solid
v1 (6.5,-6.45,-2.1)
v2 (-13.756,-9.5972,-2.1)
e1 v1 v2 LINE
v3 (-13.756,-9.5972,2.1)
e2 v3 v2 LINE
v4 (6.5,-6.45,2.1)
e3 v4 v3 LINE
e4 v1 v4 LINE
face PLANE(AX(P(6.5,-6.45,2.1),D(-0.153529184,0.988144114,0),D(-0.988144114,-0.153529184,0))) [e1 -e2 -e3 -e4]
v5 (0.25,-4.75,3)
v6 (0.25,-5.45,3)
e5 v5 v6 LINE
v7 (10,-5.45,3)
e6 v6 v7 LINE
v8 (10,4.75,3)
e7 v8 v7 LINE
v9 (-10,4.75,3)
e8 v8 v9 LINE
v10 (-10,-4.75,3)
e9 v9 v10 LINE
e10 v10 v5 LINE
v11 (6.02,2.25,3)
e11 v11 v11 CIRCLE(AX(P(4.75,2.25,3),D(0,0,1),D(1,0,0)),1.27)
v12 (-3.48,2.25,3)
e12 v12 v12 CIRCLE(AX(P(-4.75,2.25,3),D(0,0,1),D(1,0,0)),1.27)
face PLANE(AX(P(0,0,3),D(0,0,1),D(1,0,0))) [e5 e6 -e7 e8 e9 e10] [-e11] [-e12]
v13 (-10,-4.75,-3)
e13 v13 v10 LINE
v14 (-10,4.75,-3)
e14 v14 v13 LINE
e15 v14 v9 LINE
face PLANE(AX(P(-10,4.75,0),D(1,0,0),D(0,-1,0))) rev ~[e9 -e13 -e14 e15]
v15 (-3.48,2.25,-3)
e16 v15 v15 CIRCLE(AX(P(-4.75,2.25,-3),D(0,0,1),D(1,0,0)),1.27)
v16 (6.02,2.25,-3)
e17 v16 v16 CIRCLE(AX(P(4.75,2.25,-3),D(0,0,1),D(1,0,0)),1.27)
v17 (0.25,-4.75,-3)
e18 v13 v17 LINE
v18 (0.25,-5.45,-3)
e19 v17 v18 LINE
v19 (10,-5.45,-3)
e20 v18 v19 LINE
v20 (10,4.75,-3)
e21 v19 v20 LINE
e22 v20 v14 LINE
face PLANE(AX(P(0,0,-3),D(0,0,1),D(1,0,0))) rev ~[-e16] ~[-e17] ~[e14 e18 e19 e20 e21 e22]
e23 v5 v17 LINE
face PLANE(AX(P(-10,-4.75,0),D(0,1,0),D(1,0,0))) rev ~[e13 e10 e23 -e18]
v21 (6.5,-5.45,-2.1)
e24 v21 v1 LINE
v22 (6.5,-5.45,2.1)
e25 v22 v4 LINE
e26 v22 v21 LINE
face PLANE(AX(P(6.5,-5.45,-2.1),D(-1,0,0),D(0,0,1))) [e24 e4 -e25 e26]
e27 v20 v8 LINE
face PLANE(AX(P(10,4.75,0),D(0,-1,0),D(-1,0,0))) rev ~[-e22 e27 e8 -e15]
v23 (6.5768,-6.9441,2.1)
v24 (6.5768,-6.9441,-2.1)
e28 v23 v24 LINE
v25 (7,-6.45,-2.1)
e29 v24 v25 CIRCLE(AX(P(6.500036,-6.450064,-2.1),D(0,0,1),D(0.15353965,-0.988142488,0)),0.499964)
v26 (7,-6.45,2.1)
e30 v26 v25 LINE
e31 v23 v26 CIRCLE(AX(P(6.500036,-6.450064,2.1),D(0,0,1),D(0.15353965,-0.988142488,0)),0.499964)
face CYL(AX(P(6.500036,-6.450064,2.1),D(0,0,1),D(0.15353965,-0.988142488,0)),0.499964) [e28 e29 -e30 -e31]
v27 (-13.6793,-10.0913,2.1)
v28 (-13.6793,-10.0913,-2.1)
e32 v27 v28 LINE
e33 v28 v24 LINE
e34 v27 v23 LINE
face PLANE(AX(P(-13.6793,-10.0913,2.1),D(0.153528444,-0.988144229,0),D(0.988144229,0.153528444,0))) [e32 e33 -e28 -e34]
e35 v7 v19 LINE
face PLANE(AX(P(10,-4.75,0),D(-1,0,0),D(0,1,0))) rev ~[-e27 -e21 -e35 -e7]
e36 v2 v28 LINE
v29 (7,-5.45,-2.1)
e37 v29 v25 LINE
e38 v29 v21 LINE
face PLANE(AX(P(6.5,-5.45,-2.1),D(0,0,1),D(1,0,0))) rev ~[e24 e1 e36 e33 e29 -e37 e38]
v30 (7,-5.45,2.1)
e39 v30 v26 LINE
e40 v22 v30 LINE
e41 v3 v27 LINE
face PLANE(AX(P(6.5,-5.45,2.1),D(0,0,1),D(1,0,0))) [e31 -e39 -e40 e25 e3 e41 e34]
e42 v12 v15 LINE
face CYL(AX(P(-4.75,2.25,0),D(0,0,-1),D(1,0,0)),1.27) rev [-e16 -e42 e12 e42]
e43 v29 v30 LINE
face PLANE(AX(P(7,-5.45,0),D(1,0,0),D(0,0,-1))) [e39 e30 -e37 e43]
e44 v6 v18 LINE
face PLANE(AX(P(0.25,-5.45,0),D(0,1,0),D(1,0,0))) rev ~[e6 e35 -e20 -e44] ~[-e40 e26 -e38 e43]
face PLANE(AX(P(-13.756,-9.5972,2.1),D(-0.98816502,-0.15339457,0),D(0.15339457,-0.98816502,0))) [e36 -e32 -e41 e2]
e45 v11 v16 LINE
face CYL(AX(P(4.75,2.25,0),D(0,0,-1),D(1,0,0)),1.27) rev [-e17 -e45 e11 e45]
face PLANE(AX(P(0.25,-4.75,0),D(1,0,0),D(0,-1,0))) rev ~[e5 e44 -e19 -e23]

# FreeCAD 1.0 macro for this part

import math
import FreeCAD as App
import Part
import Sketcher
from FreeCAD import Vector
Q = App.Units.Quantity

doc = App.newDocument("Part")
body = doc.addObject("PartDesign::Body", "Body")

# Sketch on XY plane
sketch1 = body.newObject("Sketcher::SketchObject", "Sketch")
sketch1.AttachmentSupport = (doc.getObject("XY_Plane"), [""])
sketch1.MapMode = "FlatFace"
sketch1.addGeometry(Part.LineSegment(Vector(10, 4.75, 0), Vector(-10, 4.75, 0)), False)
sketch1.addGeometry(Part.LineSegment(Vector(-10, 4.75, 0), Vector(-10, -4.75, 0)), False)
sketch1.addGeometry(Part.LineSegment(Vector(-10, -4.75, 0), Vector(0.25, -4.75, 0)), False)
sketch1.addGeometry(Part.LineSegment(Vector(0.25, -4.75, 0), Vector(0.25, -5.45, 0)), False)
sketch1.addGeometry(Part.LineSegment(Vector(0.25, -5.45, 0), Vector(10, -5.45, 0)), False)
sketch1.addGeometry(Part.LineSegment(Vector(10, -5.45, 0), Vector(10, 4.75, 0)), False)
sketch1.addGeometry(Part.Circle(Vector(-4.75, 2.25, 0), Vector(0, 0, 1), 1.27), False)
sketch1.addGeometry(Part.Circle(Vector(4.75, 2.25, 0), Vector(0, 0, 1), 1.27), False)
sketch1.addConstraint(Sketcher.Constraint("Coincident", 0, 2, 1, 1))
sketch1.addConstraint(Sketcher.Constraint("Coincident", 1, 2, 2, 1))
sketch1.addConstraint(Sketcher.Constraint("Coincident", 2, 2, 3, 1))
sketch1.addConstraint(Sketcher.Constraint("Coincident", 3, 2, 4, 1))
sketch1.addConstraint(Sketcher.Constraint("Coincident", 4, 2, 5, 1))
sketch1.addConstraint(Sketcher.Constraint("Coincident", 5, 2, 0, 1))
sketch1.addConstraint(Sketcher.Constraint("Horizontal", 0))
sketch1.addConstraint(Sketcher.Constraint("Vertical", 1))
sketch1.addConstraint(Sketcher.Constraint("Horizontal", 2))
sketch1.addConstraint(Sketcher.Constraint("Vertical", 3))
sketch1.addConstraint(Sketcher.Constraint("Horizontal", 4))
sketch1.addConstraint(Sketcher.Constraint("Vertical", 5))
sketch1.addConstraint(Sketcher.Constraint("Equal", 6, 7))
sketch1.addConstraint(Sketcher.Constraint("Symmetric", 1, 2, 5, 2, -1, 1))
sketch1.addConstraint(Sketcher.Constraint("Symmetric", 6, 3, 7, 3, -2))
sketch1.addConstraint(Sketcher.Constraint("Diameter", 6, Q("2.54 mm")))
sketch1.addConstraint(Sketcher.Constraint("DistanceX", 0, 2, 0, 1, Q("20 mm")))
sketch1.addConstraint(Sketcher.Constraint("DistanceY", 1, 2, 1, 1, Q("9.5 mm")))
sketch1.addConstraint(Sketcher.Constraint("DistanceY", 5, 1, 5, 2, Q("10.2 mm")))
sketch1.addConstraint(Sketcher.Constraint("DistanceX", 4, 1, 4, 2, Q("9.75 mm")))
sketch1.addConstraint(Sketcher.Constraint("DistanceX", 6, 3, 7, 3, Q("9.5 mm")))
sketch1.addConstraint(Sketcher.Constraint("DistanceY", 6, 3, 0, 2, Q("2.5 mm")))
pad1 = body.newObject("PartDesign::Pad", "Pad")
pad1.Profile = sketch1
pad1.Length = 6
pad1.Midplane = True

# Sketch on XZ plane
sketch2 = body.newObject("Sketcher::SketchObject", "Sketch001")
sketch2.AttachmentSupport = (doc.getObject("XZ_Plane"), [""])
sketch2.MapMode = "FlatFace"
sketch2.AttachmentOffset = App.Placement(Vector(0, 0, 5.45), App.Rotation())
sketch2.addGeometry(Part.LineSegment(Vector(6.5, -2.1, 0), Vector(7, -2.1, 0)), False)
sketch2.addGeometry(Part.LineSegment(Vector(7, -2.1, 0), Vector(7, 2.1, 0)), False)
sketch2.addGeometry(Part.LineSegment(Vector(7, 2.1, 0), Vector(6.5, 2.1, 0)), False)
sketch2.addGeometry(Part.LineSegment(Vector(6.5, 2.1, 0), Vector(6.5, -2.1, 0)), False)
sketch2.addConstraint(Sketcher.Constraint("Coincident", 0, 2, 1, 1))
sketch2.addConstraint(Sketcher.Constraint("Coincident", 1, 2, 2, 1))
sketch2.addConstraint(Sketcher.Constraint("Coincident", 2, 2, 3, 1))
sketch2.addConstraint(Sketcher.Constraint("Coincident", 3, 2, 0, 1))
sketch2.addConstraint(Sketcher.Constraint("Horizontal", 0))
sketch2.addConstraint(Sketcher.Constraint("Vertical", 1))
sketch2.addConstraint(Sketcher.Constraint("Horizontal", 2))
sketch2.addConstraint(Sketcher.Constraint("Vertical", 3))
sketch2.addConstraint(Sketcher.Constraint("DistanceX", 0, 1, 0, 2, Q("0.5 mm")))
sketch2.addConstraint(Sketcher.Constraint("DistanceY", 1, 1, 1, 2, Q("4.2 mm")))
sketch2.addConstraint(Sketcher.Constraint("DistanceX", -1, 1, 0, 2, Q("7 mm")))
sketch2.addConstraint(Sketcher.Constraint("DistanceY", 0, 2, -1, 1, Q("2.1 mm")))
pad2 = body.newObject("PartDesign::Pad", "Pad001")
pad2.Profile = sketch2
pad2.Length = 1

# Sketch on XY plane
sketch3 = body.newObject("Sketcher::SketchObject", "Sketch002")
sketch3.AttachmentSupport = (doc.getObject("XY_Plane"), [""])
sketch3.MapMode = "FlatFace"
sketch3.AttachmentOffset = App.Placement(Vector(0, 0, 2.1), App.Rotation())
sketch3.addGeometry(Part.LineSegment(Vector(7, -6.45, 0), Vector(6.5, -6.45, 0)), False)
sketch3.addGeometry(Part.LineSegment(Vector(6.5, -6.45, 0), Vector(-13.756, -9.5972, 0)), False)
sketch3.addGeometry(Part.LineSegment(Vector(-13.756, -9.5972, 0), Vector(-13.6793, -10.0913, 0)), False)
sketch3.addGeometry(Part.LineSegment(Vector(-13.6793, -10.0913, 0), Vector(6.5768, -6.9441, 0)), False)
sketch3.addGeometry(Part.ArcOfCircle(Part.Circle(Vector(6.5, -6.45, 0), Vector(0, 0, 1), 0.500033), math.radians(-81.164979), math.radians(0)), False)
sketch3.addConstraint(Sketcher.Constraint("Coincident", 0, 2, 1, 1))
sketch3.addConstraint(Sketcher.Constraint("Coincident", 1, 2, 2, 1))
sketch3.addConstraint(Sketcher.Constraint("Coincident", 2, 2, 3, 1))
sketch3.addConstraint(Sketcher.Constraint("Tangent", 3, 2, 4, 1))
sketch3.addConstraint(Sketcher.Constraint("Coincident", 4, 2, 0, 1))
sketch3.addConstraint(Sketcher.Constraint("Horizontal", 0))
sketch3.addConstraint(Sketcher.Constraint("Coincident", 0, 2, 4, 3))
sketch3.addConstraint(Sketcher.Constraint("Perpendicular", 1, 2))
sketch3.addConstraint(Sketcher.Constraint("Perpendicular", 2, 3))
sketch3.addConstraint(Sketcher.Constraint("Radius", 4, Q("0.5 mm")))
sketch3.addConstraint(Sketcher.Constraint("DistanceX", -1, 1, 4, 2, Q("7 mm")))
sketch3.addConstraint(Sketcher.Constraint("DistanceY", 4, 3, -1, 1, Q("6.45 mm")))
sketch3.addConstraint(Sketcher.Constraint("Distance", 1, Q("20.499 mm")))
sketch3.addConstraint(Sketcher.Constraint("DistanceX", 1, 2, -1, 1, Q("13.756 mm")))
pad3 = body.newObject("PartDesign::Pad", "Pad002")
pad3.Profile = sketch3
pad3.Length = 4.2
pad3.Reversed = True

doc.recompute()
